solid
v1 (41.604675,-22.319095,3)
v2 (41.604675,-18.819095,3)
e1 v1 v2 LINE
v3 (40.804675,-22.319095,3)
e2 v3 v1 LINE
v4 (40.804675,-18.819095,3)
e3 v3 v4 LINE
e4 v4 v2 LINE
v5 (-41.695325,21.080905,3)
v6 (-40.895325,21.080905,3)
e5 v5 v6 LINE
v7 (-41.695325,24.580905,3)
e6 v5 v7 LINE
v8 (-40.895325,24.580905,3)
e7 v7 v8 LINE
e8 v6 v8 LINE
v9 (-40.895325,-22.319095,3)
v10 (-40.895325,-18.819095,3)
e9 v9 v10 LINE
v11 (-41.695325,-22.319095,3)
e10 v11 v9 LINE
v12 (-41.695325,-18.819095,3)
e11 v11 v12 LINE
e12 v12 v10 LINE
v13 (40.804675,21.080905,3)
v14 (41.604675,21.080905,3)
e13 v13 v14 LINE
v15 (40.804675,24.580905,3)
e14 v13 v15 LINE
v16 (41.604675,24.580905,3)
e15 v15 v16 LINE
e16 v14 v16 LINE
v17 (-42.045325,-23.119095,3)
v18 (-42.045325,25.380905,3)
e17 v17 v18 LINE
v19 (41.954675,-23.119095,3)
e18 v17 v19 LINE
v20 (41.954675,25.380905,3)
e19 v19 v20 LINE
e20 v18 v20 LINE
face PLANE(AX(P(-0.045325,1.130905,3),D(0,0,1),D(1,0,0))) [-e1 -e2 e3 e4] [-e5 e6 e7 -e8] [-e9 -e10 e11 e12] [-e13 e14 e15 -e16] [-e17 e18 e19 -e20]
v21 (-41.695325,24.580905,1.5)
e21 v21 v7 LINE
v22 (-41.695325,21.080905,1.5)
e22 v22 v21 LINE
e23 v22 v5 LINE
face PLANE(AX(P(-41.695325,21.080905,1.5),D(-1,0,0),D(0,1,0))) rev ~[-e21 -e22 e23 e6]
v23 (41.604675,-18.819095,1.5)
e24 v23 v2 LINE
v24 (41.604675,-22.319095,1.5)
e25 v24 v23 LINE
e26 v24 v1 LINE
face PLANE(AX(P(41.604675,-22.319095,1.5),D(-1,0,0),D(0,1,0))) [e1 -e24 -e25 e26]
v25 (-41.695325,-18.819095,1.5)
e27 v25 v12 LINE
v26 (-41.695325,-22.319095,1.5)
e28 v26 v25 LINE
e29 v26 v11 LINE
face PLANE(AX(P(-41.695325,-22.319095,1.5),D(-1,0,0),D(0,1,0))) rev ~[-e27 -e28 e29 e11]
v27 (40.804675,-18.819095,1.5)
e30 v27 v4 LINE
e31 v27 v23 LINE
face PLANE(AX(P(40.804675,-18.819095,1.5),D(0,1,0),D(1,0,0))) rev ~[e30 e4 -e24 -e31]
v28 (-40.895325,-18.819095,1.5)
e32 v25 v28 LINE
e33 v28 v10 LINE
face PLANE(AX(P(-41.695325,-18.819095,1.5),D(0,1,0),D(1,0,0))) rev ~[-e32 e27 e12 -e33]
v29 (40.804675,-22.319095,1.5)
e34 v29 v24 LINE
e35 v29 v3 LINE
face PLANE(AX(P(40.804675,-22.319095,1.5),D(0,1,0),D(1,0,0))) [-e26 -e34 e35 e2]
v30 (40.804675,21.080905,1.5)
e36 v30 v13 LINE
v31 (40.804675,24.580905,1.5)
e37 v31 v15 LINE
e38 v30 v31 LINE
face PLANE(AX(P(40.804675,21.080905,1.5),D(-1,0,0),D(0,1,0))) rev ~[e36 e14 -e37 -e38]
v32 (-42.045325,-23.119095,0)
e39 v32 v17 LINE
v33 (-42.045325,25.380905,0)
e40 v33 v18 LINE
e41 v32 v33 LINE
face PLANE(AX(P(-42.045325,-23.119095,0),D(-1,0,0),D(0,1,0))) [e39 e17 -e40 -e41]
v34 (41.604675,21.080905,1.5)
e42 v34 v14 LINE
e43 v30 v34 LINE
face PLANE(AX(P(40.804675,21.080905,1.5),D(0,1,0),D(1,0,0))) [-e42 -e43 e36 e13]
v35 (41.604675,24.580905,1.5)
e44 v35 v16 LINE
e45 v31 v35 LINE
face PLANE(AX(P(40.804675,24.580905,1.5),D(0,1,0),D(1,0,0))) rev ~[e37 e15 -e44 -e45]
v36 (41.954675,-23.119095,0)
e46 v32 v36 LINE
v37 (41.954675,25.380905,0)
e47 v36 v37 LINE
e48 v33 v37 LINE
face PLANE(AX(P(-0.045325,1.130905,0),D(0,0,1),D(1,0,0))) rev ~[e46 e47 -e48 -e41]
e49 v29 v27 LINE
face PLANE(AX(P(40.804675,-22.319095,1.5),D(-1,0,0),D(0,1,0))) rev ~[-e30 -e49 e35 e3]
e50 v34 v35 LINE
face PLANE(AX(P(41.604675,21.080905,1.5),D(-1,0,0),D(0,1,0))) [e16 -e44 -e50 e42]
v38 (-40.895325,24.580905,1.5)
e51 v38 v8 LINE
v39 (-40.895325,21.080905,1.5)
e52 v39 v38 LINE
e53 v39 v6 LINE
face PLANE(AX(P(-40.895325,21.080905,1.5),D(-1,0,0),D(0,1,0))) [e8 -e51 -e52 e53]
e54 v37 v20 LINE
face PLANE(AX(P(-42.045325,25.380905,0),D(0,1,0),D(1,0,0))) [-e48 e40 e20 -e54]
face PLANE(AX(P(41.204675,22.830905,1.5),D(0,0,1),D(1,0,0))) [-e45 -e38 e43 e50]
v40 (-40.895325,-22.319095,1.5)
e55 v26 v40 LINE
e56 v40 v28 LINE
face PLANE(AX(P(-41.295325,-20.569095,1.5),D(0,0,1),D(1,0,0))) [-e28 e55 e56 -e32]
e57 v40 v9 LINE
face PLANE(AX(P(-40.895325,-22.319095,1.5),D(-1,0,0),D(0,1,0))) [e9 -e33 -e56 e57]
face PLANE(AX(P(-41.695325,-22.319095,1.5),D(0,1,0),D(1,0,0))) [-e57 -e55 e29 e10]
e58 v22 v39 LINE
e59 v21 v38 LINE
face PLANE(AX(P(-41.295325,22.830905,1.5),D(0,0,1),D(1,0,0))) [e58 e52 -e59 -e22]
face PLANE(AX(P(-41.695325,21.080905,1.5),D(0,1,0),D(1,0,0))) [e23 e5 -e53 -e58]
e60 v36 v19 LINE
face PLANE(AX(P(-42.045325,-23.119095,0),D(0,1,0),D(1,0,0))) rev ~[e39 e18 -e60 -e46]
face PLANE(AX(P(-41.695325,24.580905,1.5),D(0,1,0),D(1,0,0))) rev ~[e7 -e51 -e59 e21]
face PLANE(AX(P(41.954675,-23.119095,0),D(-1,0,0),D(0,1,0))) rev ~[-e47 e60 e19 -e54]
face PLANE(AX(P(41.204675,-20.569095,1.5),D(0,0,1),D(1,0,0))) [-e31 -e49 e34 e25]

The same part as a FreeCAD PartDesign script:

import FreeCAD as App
import Part
import Sketcher

V = App.Vector
Q = App.Units.Quantity

doc = App.newDocument("Part")
body = doc.addObject("PartDesign::Body", "Body")

sketch1 = doc.addObject("Sketcher::SketchObject", "Sketch")
body.addObject(sketch1)
sketch1.AttachmentSupport = (doc.XY_Plane, [""])
sketch1.MapMode = "FlatFace"
sketch1.addGeometry(Part.LineSegment(V(-42, 25, 0), V(-42, -23, 0)), False)
sketch1.addGeometry(Part.LineSegment(V(-42, -23, 0), V(42, -23, 0)), False)
sketch1.addGeometry(Part.LineSegment(V(42, -23, 0), V(42, 25, 0)), False)
sketch1.addGeometry(Part.LineSegment(V(42, 25, 0), V(-42, 25, 0)), False)
sketch1.addConstraint(Sketcher.Constraint("Coincident", 0, 2, 1, 1))
sketch1.addConstraint(Sketcher.Constraint("Coincident", 1, 2, 2, 1))
sketch1.addConstraint(Sketcher.Constraint("Coincident", 2, 2, 3, 1))
sketch1.addConstraint(Sketcher.Constraint("Coincident", 3, 2, 0, 1))
sketch1.addConstraint(Sketcher.Constraint("Vertical", 0))
sketch1.addConstraint(Sketcher.Constraint("Horizontal", 1))
sketch1.addConstraint(Sketcher.Constraint("Vertical", 2))
sketch1.addConstraint(Sketcher.Constraint("Horizontal", 3))
sketch1.addConstraint(Sketcher.Constraint("DistanceX", 1, 1, 1, 2, Q("84 mm")))
sketch1.addConstraint(Sketcher.Constraint("DistanceY", 0, 2, 0, 1, Q("48.5 mm")))
sketch1.addConstraint(Sketcher.Constraint("DistanceX", 0, 2, -1, 1, Q("42.045325 mm")))
sketch1.addConstraint(Sketcher.Constraint("DistanceY", 0, 2, -1, 1, Q("23.119095 mm")))
pad1 = doc.addObject("PartDesign::Pad", "Pad")
body.addObject(pad1)
pad1.Profile = sketch1
pad1.Length = 3

sketch2 = doc.addObject("Sketcher::SketchObject", "Sketch001")
body.addObject(sketch2)
sketch2.AttachmentSupport = (doc.XY_Plane, [""])
sketch2.MapMode = "FlatFace"
sketch2.AttachmentOffset = App.Placement(V(0, 0, 1.5), App.Rotation())
sketch2.addGeometry(Part.LineSegment(V(-41.7, -18.8, 0), V(-41.7, -22.3, 0)), False)
sketch2.addGeometry(Part.LineSegment(V(-41.7, -22.3, 0), V(-40.9, -22.3, 0)), False)
sketch2.addGeometry(Part.LineSegment(V(-40.9, -22.3, 0), V(-40.9, -18.8, 0)), False)
sketch2.addGeometry(Part.LineSegment(V(-40.9, -18.8, 0), V(-41.7, -18.8, 0)), False)
sketch2.addGeometry(Part.LineSegment(V(-41.7, 24.6, 0), V(-41.7, 21.1, 0)), False)
sketch2.addGeometry(Part.LineSegment(V(-41.7, 21.1, 0), V(-40.9, 21.1, 0)), False)
sketch2.addGeometry(Part.LineSegment(V(-40.9, 21.1, 0), V(-40.9, 24.6, 0)), False)
sketch2.addGeometry(Part.LineSegment(V(-40.9, 24.6, 0), V(-41.7, 24.6, 0)), False)
sketch2.addGeometry(Part.LineSegment(V(40.8, -18.8, 0), V(40.8, -22.3, 0)), False)
sketch2.addGeometry(Part.LineSegment(V(40.8, -22.3, 0), V(41.6, -22.3, 0)), False)
sketch2.addGeometry(Part.LineSegment(V(41.6, -22.3, 0), V(41.6, -18.8, 0)), False)
sketch2.addGeometry(Part.LineSegment(V(41.6, -18.8, 0), V(40.8, -18.8, 0)), False)
sketch2.addGeometry(Part.LineSegment(V(40.8, 24.6, 0), V(40.8, 21.1, 0)), False)
sketch2.addGeometry(Part.LineSegment(V(40.8, 21.1, 0), V(41.6, 21.1, 0)), False)
sketch2.addGeometry(Part.LineSegment(V(41.6, 21.1, 0), V(41.6, 24.6, 0)), False)
sketch2.addGeometry(Part.LineSegment(V(41.6, 24.6, 0), V(40.8, 24.6, 0)), False)
sketch2.addConstraint(Sketcher.Constraint("Coincident", 0, 2, 1, 1))
sketch2.addConstraint(Sketcher.Constraint("Coincident", 1, 2, 2, 1))
sketch2.addConstraint(Sketcher.Constraint("Coincident", 2, 2, 3, 1))
sketch2.addConstraint(Sketcher.Constraint("Coincident", 3, 2, 0, 1))
sketch2.addConstraint(Sketcher.Constraint("Coincident", 4, 2, 5, 1))
sketch2.addConstraint(Sketcher.Constraint("Coincident", 5, 2, 6, 1))
sketch2.addConstraint(Sketcher.Constraint("Coincident", 6, 2, 7, 1))
sketch2.addConstraint(Sketcher.Constraint("Coincident", 7, 2, 4, 1))
sketch2.addConstraint(Sketcher.Constraint("Coincident", 8, 2, 9, 1))
sketch2.addConstraint(Sketcher.Constraint("Coincident", 9, 2, 10, 1))
sketch2.addConstraint(Sketcher.Constraint("Coincident", 10, 2, 11, 1))
sketch2.addConstraint(Sketcher.Constraint("Coincident", 11, 2, 8, 1))
sketch2.addConstraint(Sketcher.Constraint("Coincident", 12, 2, 13, 1))
sketch2.addConstraint(Sketcher.Constraint("Coincident", 13, 2, 14, 1))
sketch2.addConstraint(Sketcher.Constraint("Coincident", 14, 2, 15, 1))
sketch2.addConstraint(Sketcher.Constraint("Coincident", 15, 2, 12, 1))
sketch2.addConstraint(Sketcher.Constraint("Vertical", 0))
sketch2.addConstraint(Sketcher.Constraint("Horizontal", 1))
sketch2.addConstraint(Sketcher.Constraint("Vertical", 2))
sketch2.addConstraint(Sketcher.Constraint("Horizontal", 3))
sketch2.addConstraint(Sketcher.Constraint("Vertical", 4))
sketch2.addConstraint(Sketcher.Constraint("Horizontal", 5))
sketch2.addConstraint(Sketcher.Constraint("Vertical", 6))
sketch2.addConstraint(Sketcher.Constraint("Horizontal", 7))
sketch2.addConstraint(Sketcher.Constraint("Vertical", 8))
sketch2.addConstraint(Sketcher.Constraint("Horizontal", 9))
sketch2.addConstraint(Sketcher.Constraint("Vertical", 10))
sketch2.addConstraint(Sketcher.Constraint("Horizontal", 11))
sketch2.addConstraint(Sketcher.Constraint("Vertical", 12))
sketch2.addConstraint(Sketcher.Constraint("Horizontal", 13))
sketch2.addConstraint(Sketcher.Constraint("Vertical", 14))
sketch2.addConstraint(Sketcher.Constraint("Horizontal", 15))
sketch2.addConstraint(Sketcher.Constraint("Horizontal", 1, 2, 8, 2))
sketch2.addConstraint(Sketcher.Constraint("Horizontal", 3, 2, 10, 2))
sketch2.addConstraint(Sketcher.Constraint("Horizontal", 5, 2, 12, 2))
sketch2.addConstraint(Sketcher.Constraint("Horizontal", 7, 2, 14, 2))
sketch2.addConstraint(Sketcher.Constraint("Vertical", 3, 2, 4, 2))
sketch2.addConstraint(Sketcher.Constraint("Vertical", 2, 2, 5, 2))
sketch2.addConstraint(Sketcher.Constraint("Vertical", 11, 2, 12, 2))
sketch2.addConstraint(Sketcher.Constraint("Vertical", 10, 2, 13, 2))
sketch2.addConstraint(Sketcher.Constraint("Equal", 7, 9))
sketch2.addConstraint(Sketcher.Constraint("Equal", 2, 4))
sketch2.addConstraint(Sketcher.Constraint("DistanceX", 1, 1, 1, 2, Q("0.8 mm")))
sketch2.addConstraint(Sketcher.Constraint("DistanceY", 0, 2, 0, 1, Q("3.5 mm")))
sketch2.addConstraint(Sketcher.Constraint("DistanceY", 3, 2, 4, 2, Q("39.9 mm")))
sketch2.addConstraint(Sketcher.Constraint("DistanceX", 1, 2, 8, 2, Q("81.7 mm")))
sketch2.addConstraint(Sketcher.Constraint("DistanceX", 0, 2, -1, 1, Q("41.695325 mm")))
sketch2.addConstraint(Sketcher.Constraint("DistanceY", 0, 2, -1, 1, Q("22.319095 mm")))
pocket1 = doc.addObject("PartDesign::Pocket", "Pocket")
body.addObject(pocket1)
pocket1.Profile = sketch2
pocket1.Length = 1.5
pocket1.Reversed = True

doc.recompute()
